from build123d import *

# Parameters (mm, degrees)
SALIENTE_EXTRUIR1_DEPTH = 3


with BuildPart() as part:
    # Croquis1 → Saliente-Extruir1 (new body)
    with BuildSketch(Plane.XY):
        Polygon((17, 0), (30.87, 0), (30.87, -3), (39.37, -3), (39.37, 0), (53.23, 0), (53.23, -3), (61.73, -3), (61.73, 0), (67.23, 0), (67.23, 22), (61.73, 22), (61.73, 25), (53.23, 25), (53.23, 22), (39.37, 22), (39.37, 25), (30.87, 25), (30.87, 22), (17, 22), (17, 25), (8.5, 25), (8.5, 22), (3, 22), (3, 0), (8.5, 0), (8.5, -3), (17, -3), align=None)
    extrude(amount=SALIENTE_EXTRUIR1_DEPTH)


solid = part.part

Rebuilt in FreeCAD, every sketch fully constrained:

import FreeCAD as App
import Part
import Sketcher

V = App.Vector
Q = App.Units.Quantity


def add_polygon(sketch, points):
    """Adds a closed chain of lines whose ends are joined by coincident constraints."""
    first, n = sketch.GeometryCount, len(points)
    for a, b in zip(points, points[1:] + points[:1]):
        sketch.addGeometry(Part.LineSegment(App.Vector(*a, 0), App.Vector(*b, 0)), False)
    for i in range(n):
        sketch.addConstraint(Sketcher.Constraint("Coincident", first + i, 2, first + (i + 1) % n, 1))

doc = App.newDocument("Part")
body = doc.addObject("PartDesign::Body", "Body")

sketch1 = body.newObject("Sketcher::SketchObject", "Sketch")
sketch1.AttachmentSupport = (doc.getObject("XY_Plane"), [""])
sketch1.MapMode = "FlatFace"
add_polygon(sketch1, [(17, 0), (30.87, 0), (30.87, -3), (39.37, -3), (39.37, 0), (53.23, 0), (53.23, -3), (61.73, -3), (61.73, 0), (67.23, 0), (67.23, 22), (61.73, 22), (61.73, 25), (53.23, 25), (53.23, 22), (39.37, 22), (39.37, 25), (30.87, 25), (30.87, 22), (17, 22), (17, 25), (8.5, 25), (8.5, 22), (3, 22), (3, 0), (8.5, 0), (8.5, -3), (17, -3)])
sketch1.addConstraint([
    Sketcher.Constraint("Horizontal", 0),
    Sketcher.Constraint("Vertical", 1),
    Sketcher.Constraint("Horizontal", 2),
    Sketcher.Constraint("Vertical", 3),
    Sketcher.Constraint("Horizontal", 4),
    Sketcher.Constraint("Vertical", 5),
    Sketcher.Constraint("Horizontal", 6),
    Sketcher.Constraint("Vertical", 7),
    Sketcher.Constraint("Horizontal", 8),
    Sketcher.Constraint("Vertical", 9),
    Sketcher.Constraint("Horizontal", 10),
    Sketcher.Constraint("Vertical", 11),
    Sketcher.Constraint("Horizontal", 12),
    Sketcher.Constraint("Vertical", 13),
    Sketcher.Constraint("Horizontal", 14),
    Sketcher.Constraint("Vertical", 15),
    Sketcher.Constraint("Horizontal", 16),
    Sketcher.Constraint("Vertical", 17),
    Sketcher.Constraint("Horizontal", 18),
    Sketcher.Constraint("Vertical", 19),
    Sketcher.Constraint("Horizontal", 20),
    Sketcher.Constraint("Vertical", 21),
    Sketcher.Constraint("Horizontal", 22),
    Sketcher.Constraint("Vertical", 23),
    Sketcher.Constraint("Horizontal", 24),
    Sketcher.Constraint("Vertical", 25),
    Sketcher.Constraint("Horizontal", 26),
    Sketcher.Constraint("Vertical", 27),
    Sketcher.Constraint("PointOnObject", 0, 2, -1),
    Sketcher.Constraint("PointOnObject", 3, 2, -1),
    Sketcher.Constraint("PointOnObject", 7, 2, -1),
    Sketcher.Constraint("PointOnObject", 23, 2, -1),
    Sketcher.Constraint("Horizontal", 2, 2, 5, 2),
    Sketcher.Constraint("Horizontal", 10, 2, 13, 2),
    Sketcher.Constraint("Horizontal", 12, 2, 15, 2),
    Sketcher.Constraint("Horizontal", 14, 2, 17, 2),
    Sketcher.Constraint("Horizontal", 16, 2, 19, 2),
    Sketcher.Constraint("Horizontal", 18, 2, 21, 2),
    Sketcher.Constraint("Horizontal", 6, 2, 25, 2),
    Sketcher.Constraint("Vertical", 7, 2, 10, 2),
    Sketcher.Constraint("Vertical", 5, 2, 12, 2),
    Sketcher.Constraint("Vertical", 3, 2, 14, 2),
    Sketcher.Constraint("Vertical", 1, 2, 16, 2),
    Sketcher.Constraint("Vertical", 21, 2, 24, 2),
    Sketcher.Constraint("Vertical", 19, 2, 26, 2),
    Sketcher.Constraint("Equal", 2, 6),
    Sketcher.Constraint("Equal", 16, 20),
    Sketcher.Constraint("Equal", 10, 22),
    Sketcher.Constraint("Equal", 7, 11),
    Sketcher.Constraint("DistanceY", 1, 2, 1, 1, Q("3 mm")),
    Sketcher.Constraint("DistanceY", 9, 1, 9, 2, Q("22 mm")),
    Sketcher.Constraint("DistanceX", 2, 1, 2, 2, Q("8.5 mm")),
    Sketcher.Constraint("DistanceX", 8, 1, 8, 2, Q("5.5 mm")),
    Sketcher.Constraint("DistanceX", -1, 1, 18, 2, Q("17 mm")),
    Sketcher.Constraint("DistanceX", 0, 1, 0, 2, Q("13.87 mm")),
    Sketcher.Constraint("DistanceX", 4, 1, 4, 2, Q("13.86 mm")),
])
pad1 = body.newObject("PartDesign::Pad", "Pad")
pad1.Profile = sketch1
pad1.Length = 3

doc.recompute()
